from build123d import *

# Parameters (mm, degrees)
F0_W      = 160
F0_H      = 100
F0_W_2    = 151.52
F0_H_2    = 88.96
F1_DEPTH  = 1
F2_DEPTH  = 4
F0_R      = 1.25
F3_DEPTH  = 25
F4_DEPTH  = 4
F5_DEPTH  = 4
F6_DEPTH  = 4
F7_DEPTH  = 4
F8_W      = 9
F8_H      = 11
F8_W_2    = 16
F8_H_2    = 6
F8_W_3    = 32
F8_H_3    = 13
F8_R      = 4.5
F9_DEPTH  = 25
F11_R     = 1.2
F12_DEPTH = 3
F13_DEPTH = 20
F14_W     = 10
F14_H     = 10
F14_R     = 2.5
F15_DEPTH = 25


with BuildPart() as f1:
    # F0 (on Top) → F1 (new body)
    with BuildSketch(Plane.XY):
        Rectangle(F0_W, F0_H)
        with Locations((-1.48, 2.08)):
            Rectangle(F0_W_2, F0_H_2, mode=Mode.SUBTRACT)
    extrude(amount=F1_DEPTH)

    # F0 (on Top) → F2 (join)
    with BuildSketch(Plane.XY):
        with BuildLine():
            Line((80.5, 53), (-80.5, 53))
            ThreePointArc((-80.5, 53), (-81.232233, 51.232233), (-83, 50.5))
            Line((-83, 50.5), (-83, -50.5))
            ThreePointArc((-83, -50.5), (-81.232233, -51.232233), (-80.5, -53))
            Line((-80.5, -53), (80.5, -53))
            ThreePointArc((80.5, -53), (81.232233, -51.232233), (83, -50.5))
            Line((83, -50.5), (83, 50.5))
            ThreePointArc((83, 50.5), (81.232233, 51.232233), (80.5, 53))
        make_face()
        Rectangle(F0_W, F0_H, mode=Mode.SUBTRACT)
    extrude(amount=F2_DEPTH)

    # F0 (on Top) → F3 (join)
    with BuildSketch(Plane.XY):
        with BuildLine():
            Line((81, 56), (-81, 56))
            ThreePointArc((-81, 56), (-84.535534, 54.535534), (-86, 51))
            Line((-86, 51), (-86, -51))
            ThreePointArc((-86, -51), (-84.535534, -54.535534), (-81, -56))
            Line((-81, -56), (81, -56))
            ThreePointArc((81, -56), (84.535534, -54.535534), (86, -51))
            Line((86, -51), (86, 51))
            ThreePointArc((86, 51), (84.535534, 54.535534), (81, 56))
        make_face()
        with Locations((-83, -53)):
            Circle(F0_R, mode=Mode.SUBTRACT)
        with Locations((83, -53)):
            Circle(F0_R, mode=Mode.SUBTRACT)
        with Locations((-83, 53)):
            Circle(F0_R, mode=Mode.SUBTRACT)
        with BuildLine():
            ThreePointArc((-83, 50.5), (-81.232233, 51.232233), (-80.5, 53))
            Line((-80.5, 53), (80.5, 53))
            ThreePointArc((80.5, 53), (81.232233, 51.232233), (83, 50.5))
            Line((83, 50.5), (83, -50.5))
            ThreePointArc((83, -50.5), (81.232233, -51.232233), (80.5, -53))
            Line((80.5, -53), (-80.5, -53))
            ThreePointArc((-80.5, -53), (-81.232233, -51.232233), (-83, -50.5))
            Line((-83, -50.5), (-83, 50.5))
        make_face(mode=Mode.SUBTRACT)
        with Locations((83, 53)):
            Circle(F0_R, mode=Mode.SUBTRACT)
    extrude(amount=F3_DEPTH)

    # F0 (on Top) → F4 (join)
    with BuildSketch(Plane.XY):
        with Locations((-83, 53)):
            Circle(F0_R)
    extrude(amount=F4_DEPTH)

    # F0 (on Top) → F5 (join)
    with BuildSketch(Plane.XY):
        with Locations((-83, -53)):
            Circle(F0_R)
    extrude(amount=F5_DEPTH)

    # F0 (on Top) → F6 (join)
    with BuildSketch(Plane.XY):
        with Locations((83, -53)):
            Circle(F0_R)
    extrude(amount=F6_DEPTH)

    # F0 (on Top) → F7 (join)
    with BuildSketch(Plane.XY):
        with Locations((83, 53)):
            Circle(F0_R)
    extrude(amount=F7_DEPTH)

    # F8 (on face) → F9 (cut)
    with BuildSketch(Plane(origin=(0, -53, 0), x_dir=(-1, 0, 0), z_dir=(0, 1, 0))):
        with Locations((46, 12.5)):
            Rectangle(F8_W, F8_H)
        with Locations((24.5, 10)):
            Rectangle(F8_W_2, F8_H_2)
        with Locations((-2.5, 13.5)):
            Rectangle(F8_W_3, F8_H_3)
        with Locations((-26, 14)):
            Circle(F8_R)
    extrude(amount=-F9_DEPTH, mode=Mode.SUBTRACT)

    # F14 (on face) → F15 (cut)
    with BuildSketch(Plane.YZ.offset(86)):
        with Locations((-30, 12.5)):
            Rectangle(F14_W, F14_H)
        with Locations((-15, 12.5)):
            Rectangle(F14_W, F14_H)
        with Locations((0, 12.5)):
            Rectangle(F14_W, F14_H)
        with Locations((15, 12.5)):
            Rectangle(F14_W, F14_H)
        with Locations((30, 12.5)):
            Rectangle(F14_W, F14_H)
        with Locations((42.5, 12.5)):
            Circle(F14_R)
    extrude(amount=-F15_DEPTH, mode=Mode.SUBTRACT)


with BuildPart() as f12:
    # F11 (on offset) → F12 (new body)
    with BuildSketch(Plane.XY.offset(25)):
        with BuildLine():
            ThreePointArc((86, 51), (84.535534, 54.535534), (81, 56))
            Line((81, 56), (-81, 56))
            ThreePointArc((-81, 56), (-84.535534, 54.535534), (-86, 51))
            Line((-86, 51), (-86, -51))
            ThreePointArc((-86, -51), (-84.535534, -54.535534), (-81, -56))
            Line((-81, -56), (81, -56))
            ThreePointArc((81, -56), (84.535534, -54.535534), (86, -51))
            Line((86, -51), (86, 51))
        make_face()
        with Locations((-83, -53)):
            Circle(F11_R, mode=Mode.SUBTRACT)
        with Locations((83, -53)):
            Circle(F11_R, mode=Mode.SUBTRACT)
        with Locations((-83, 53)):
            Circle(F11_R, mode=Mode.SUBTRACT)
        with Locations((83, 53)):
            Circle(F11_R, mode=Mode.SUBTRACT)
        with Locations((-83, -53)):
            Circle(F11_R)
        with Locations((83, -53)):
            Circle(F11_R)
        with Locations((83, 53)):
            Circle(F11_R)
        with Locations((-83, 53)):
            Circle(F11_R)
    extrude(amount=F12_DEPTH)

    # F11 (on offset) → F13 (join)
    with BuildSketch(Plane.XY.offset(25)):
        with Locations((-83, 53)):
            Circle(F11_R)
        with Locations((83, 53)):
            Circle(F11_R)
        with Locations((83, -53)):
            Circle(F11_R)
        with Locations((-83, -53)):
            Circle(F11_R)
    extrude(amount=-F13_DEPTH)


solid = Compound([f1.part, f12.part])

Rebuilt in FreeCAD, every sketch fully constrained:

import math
import FreeCAD as App
import Part
import Sketcher
from FreeCAD import Vector


def add_polygon(sketch, points):
    """Adds a closed chain of lines whose ends are joined by coincident constraints."""
    first, n = sketch.GeometryCount, len(points)
    for a, b in zip(points, points[1:] + points[:1]):
        sketch.addGeometry(Part.LineSegment(App.Vector(*a, 0), App.Vector(*b, 0)), False)
    for i in range(n):
        sketch.addConstraint(Sketcher.Constraint("Coincident", first + i, 2, first + (i + 1) % n, 1))

doc = App.newDocument("Part")
body = doc.addObject("PartDesign::Body", "Body")

sketch1 = body.newObject("Sketcher::SketchObject", "Sketch")
sketch1.AttachmentSupport = (doc.getObject("XY_Plane"), [""])
sketch1.MapMode = "FlatFace"
add_polygon(sketch1, [(-80, 50), (-80, -50), (80, -50), (80, 50)])
add_polygon(sketch1, [(74.28, -42.4), (-77.24, -42.4), (-77.24, 46.56), (74.28, 46.56)])
sketch1.addConstraint([
    Sketcher.Constraint("Vertical", 0),
    Sketcher.Constraint("Horizontal", 1),
    Sketcher.Constraint("Vertical", 2),
    Sketcher.Constraint("Horizontal", 3),
    Sketcher.Constraint("Horizontal", 4),
    Sketcher.Constraint("Vertical", 5),
    Sketcher.Constraint("Horizontal", 6),
    Sketcher.Constraint("Vertical", 7),
    Sketcher.Constraint("Symmetric", 0, 2, 2, 2, -1, 1),
    Sketcher.Constraint("DistanceX", 1, 1, 1, 2, 160.0),
    Sketcher.Constraint("DistanceY", 0, 2, 0, 1, 100.0),
    Sketcher.Constraint("DistanceX", 4, 2, 4, 1, 151.52),
    Sketcher.Constraint("DistanceY", 5, 1, 5, 2, 88.96),
    Sketcher.Constraint("DistanceY", 4, 2, -1, 1, 42.4),
    Sketcher.Constraint("DistanceX", 4, 2, -1, 1, 77.24),
])
pad1 = body.newObject("PartDesign::Pad", "Pad")
pad1.Profile = sketch1
pad1.Length = 1

sketch2 = body.newObject("Sketcher::SketchObject", "Sketch001")
sketch2.AttachmentSupport = (doc.getObject("XY_Plane"), [""])
sketch2.MapMode = "FlatFace"
sketch2.addGeometry(Part.LineSegment(Vector(80.5, 53, 0), Vector(-80.5, 53, 0)), False)
sketch2.addGeometry(Part.ArcOfCircle(Part.Circle(Vector(-83, 53, 0), Vector(0, 0, 1), 2.5), math.radians(-90.000004), math.radians(0.000004)), False)
sketch2.addGeometry(Part.LineSegment(Vector(-83, 50.5, 0), Vector(-83, -50.5, 0)), False)
sketch2.addGeometry(Part.ArcOfCircle(Part.Circle(Vector(-83, -53, 0), Vector(0, 0, 1), 2.5), math.radians(-0.000004), math.radians(90.000004)), False)
sketch2.addGeometry(Part.LineSegment(Vector(-80.5, -53, 0), Vector(80.5, -53, 0)), False)
sketch2.addGeometry(Part.ArcOfCircle(Part.Circle(Vector(83, -53, 0), Vector(0, 0, 1), 2.5), math.radians(89.999996), math.radians(180.000004)), False)
sketch2.addGeometry(Part.LineSegment(Vector(83, -50.5, 0), Vector(83, 50.5, 0)), False)
sketch2.addGeometry(Part.ArcOfCircle(Part.Circle(Vector(83, 53, 0), Vector(0, 0, 1), 2.5), math.radians(179.999996), math.radians(270.000004)), False)
add_polygon(sketch2, [(80, -50), (-80, -50), (-80, 50), (80, 50)])
sketch2.addConstraint([
    Sketcher.Constraint("Coincident", 0, 2, 1, 2),
    Sketcher.Constraint("Coincident", 1, 1, 2, 1),
    Sketcher.Constraint("Coincident", 2, 2, 3, 2),
    Sketcher.Constraint("Coincident", 3, 1, 4, 1),
    Sketcher.Constraint("Coincident", 4, 2, 5, 2),
    Sketcher.Constraint("Coincident", 5, 1, 6, 1),
    Sketcher.Constraint("Coincident", 6, 2, 7, 2),
    Sketcher.Constraint("Coincident", 7, 1, 0, 1),
    Sketcher.Constraint("Horizontal", 0),
    Sketcher.Constraint("Vertical", 2),
    Sketcher.Constraint("Horizontal", 4),
    Sketcher.Constraint("Vertical", 6),
    Sketcher.Constraint("Horizontal", 8),
    Sketcher.Constraint("Vertical", 9),
    Sketcher.Constraint("Horizontal", 10),
    Sketcher.Constraint("Vertical", 11),
    Sketcher.Constraint("Equal", 1, 3),
    Sketcher.Constraint("Equal", 3, 5),
    Sketcher.Constraint("Equal", 5, 7),
    Sketcher.Constraint("Symmetric", 1, 3, 5, 3, -1, 1),
    Sketcher.Constraint("Symmetric", 3, 3, 7, 3, -1, 1),
    Sketcher.Constraint("Symmetric", 8, 2, 10, 2, -1, 1),
    Sketcher.Constraint("Symmetric", 3, 3, 5, 3, -2),
    Sketcher.Constraint("Horizontal", 7, 3, 0, 2),
    Sketcher.Constraint("Horizontal", 5, 3, 3, 1),
    Sketcher.Constraint("Vertical", 3, 3, 1, 1),
    Sketcher.Constraint("Vertical", 7, 3, 5, 1),
    Sketcher.Constraint("Radius", 1, 2.5),
    Sketcher.Constraint("DistanceX", 0, 2, 0, 1, 161.0),
    Sketcher.Constraint("DistanceX", 8, 2, 8, 1, 160.0),
    Sketcher.Constraint("DistanceY", 2, 2, 2, 1, 101.0),
    Sketcher.Constraint("DistanceY", 9, 1, 9, 2, 100.0),
])
pad2 = body.newObject("PartDesign::Pad", "Pad001")
pad2.Profile = sketch2
pad2.Length = 4

sketch3 = body.newObject("Sketcher::SketchObject", "Sketch002")
sketch3.AttachmentSupport = (doc.getObject("XY_Plane"), [""])
sketch3.MapMode = "FlatFace"
sketch3.addGeometry([
    Part.LineSegment(Vector(81, 56, 0), Vector(-81, 56, 0)),
    Part.ArcOfCircle(Part.Circle(Vector(-81, 51, 0), Vector(0, 0, 1), 5), math.radians(89.999996), math.radians(180.000004)),
    Part.LineSegment(Vector(-86, 51, 0), Vector(-86, -51, 0)),
    Part.ArcOfCircle(Part.Circle(Vector(-81, -51, 0), Vector(0, 0, 1), 5), math.radians(179.999996), math.radians(270.000004)),
    Part.LineSegment(Vector(-81, -56, 0), Vector(81, -56, 0)),
    Part.ArcOfCircle(Part.Circle(Vector(81, -51, 0), Vector(0, 0, 1), 5), math.radians(-90.000004), math.radians(0.000004)),
    Part.LineSegment(Vector(86, -51, 0), Vector(86, 51, 0)),
    Part.ArcOfCircle(Part.Circle(Vector(81, 51, 0), Vector(0, 0, 1), 5), math.radians(-0.000004), math.radians(90.000004)),
    Part.Circle(Vector(-83, -53, 0), Vector(0, 0, 1), 1.25),
    Part.Circle(Vector(83, -53, 0), Vector(0, 0, 1), 1.25),
    Part.Circle(Vector(-83, 53, 0), Vector(0, 0, 1), 1.25),
    Part.LineSegment(Vector(-83, -50.5, 0), Vector(-83, 50.5, 0)),
    Part.ArcOfCircle(Part.Circle(Vector(-83, 53, 0), Vector(0, 0, 1), 2.5), math.radians(-90.000004), math.radians(0.000004)),
    Part.LineSegment(Vector(-80.5, 53, 0), Vector(80.5, 53, 0)),
    Part.ArcOfCircle(Part.Circle(Vector(83, 53, 0), Vector(0, 0, 1), 2.5), math.radians(179.999996), math.radians(270.000004)),
    Part.LineSegment(Vector(83, 50.5, 0), Vector(83, -50.5, 0)),
    Part.ArcOfCircle(Part.Circle(Vector(83, -53, 0), Vector(0, 0, 1), 2.5), math.radians(89.999996), math.radians(180.000004)),
    Part.LineSegment(Vector(80.5, -53, 0), Vector(-80.5, -53, 0)),
    Part.ArcOfCircle(Part.Circle(Vector(-83, -53, 0), Vector(0, 0, 1), 2.5), math.radians(-0.000004), math.radians(90.000004)),
    Part.Circle(Vector(83, 53, 0), Vector(0, 0, 1), 1.25),
], False)
sketch3.addConstraint([
    Sketcher.Constraint("Tangent", 0, 2, 1, 1),
    Sketcher.Constraint("Tangent", 1, 2, 2, 1),
    Sketcher.Constraint("Tangent", 2, 2, 3, 1),
    Sketcher.Constraint("Tangent", 3, 2, 4, 1),
    Sketcher.Constraint("Tangent", 4, 2, 5, 1),
    Sketcher.Constraint("Tangent", 5, 2, 6, 1),
    Sketcher.Constraint("Tangent", 6, 2, 7, 1),
    Sketcher.Constraint("Tangent", 7, 2, 0, 1),
    Sketcher.Constraint("Coincident", 11, 2, 12, 1),
    Sketcher.Constraint("Coincident", 12, 2, 13, 1),
    Sketcher.Constraint("Coincident", 13, 2, 14, 1),
    Sketcher.Constraint("Coincident", 14, 2, 15, 1),
    Sketcher.Constraint("Coincident", 15, 2, 16, 1),
    Sketcher.Constraint("Coincident", 16, 2, 17, 1),
    Sketcher.Constraint("Coincident", 17, 2, 18, 1),
    Sketcher.Constraint("Coincident", 18, 2, 11, 1),
    Sketcher.Constraint("Horizontal", 0),
    Sketcher.Constraint("Vertical", 2),
    Sketcher.Constraint("Horizontal", 4),
    Sketcher.Constraint("Vertical", 6),
    Sketcher.Constraint("Vertical", 11),
    Sketcher.Constraint("Horizontal", 13),
    Sketcher.Constraint("Vertical", 15),
    Sketcher.Constraint("Horizontal", 17),
    Sketcher.Constraint("Coincident", 12, 3, 10, 3),
    Sketcher.Constraint("Coincident", 16, 3, 9, 3),
    Sketcher.Constraint("Coincident", 18, 3, 8, 3),
    Sketcher.Constraint("Coincident", 19, 3, 14, 3),
    Sketcher.Constraint("Equal", 1, 3),
    Sketcher.Constraint("Equal", 3, 5),
    Sketcher.Constraint("Equal", 5, 7),
    Sketcher.Constraint("Equal", 8, 9),
    Sketcher.Constraint("Equal", 9, 10),
    Sketcher.Constraint("Equal", 12, 14),
    Sketcher.Constraint("Equal", 14, 16),
    Sketcher.Constraint("Equal", 16, 18),
    Sketcher.Constraint("Equal", 10, 19),
    Sketcher.Constraint("Symmetric", 1, 3, 5, 3, -1, 1),
    Sketcher.Constraint("Symmetric", 9, 3, 10, 3, -1, 1),
    Sketcher.Constraint("Symmetric", 8, 3, 14, 3, -1, 1),
    Sketcher.Constraint("Symmetric", 8, 3, 9, 3, -2),
    Sketcher.Constraint("Horizontal", 19, 3, 12, 2),
    Sketcher.Constraint("Horizontal", 18, 3, 16, 2),
    Sketcher.Constraint("Vertical", 18, 3, 11, 2),
    Sketcher.Constraint("Vertical", 19, 3, 14, 2),
    Sketcher.Constraint("Radius", 1, 5.0),
    Sketcher.Constraint("Diameter", 8, 2.5),
    Sketcher.Constraint("Radius", 12, 2.5),
    Sketcher.Constraint("DistanceX", 0, 2, 0, 1, 162.0),
    Sketcher.Constraint("DistanceX", 13, 1, 13, 2, 161.0),
    Sketcher.Constraint("DistanceY", 2, 2, 2, 1, 102.0),
    Sketcher.Constraint("DistanceY", 11, 1, 11, 2, 101.0),
])
pad3 = body.newObject("PartDesign::Pad", "Pad002")
pad3.Profile = sketch3
pad3.Length = 25

sketch4 = body.newObject("Sketcher::SketchObject", "Sketch003")
sketch4.AttachmentSupport = (doc.getObject("XY_Plane"), [""])
sketch4.MapMode = "FlatFace"
sketch4.addGeometry(Part.Circle(Vector(-83, 53, 0), Vector(0, 0, 1), 1.25), False)
sketch4.addConstraint([
    Sketcher.Constraint("Diameter", 0, 2.5),
    Sketcher.Constraint("DistanceX", 0, 3, -1, 1, 83.0),
    Sketcher.Constraint("DistanceY", -1, 1, 0, 3, 53.0),
])
pad4 = body.newObject("PartDesign::Pad", "Pad003")
pad4.Profile = sketch4
pad4.Length = 4

sketch5 = body.newObject("Sketcher::SketchObject", "Sketch004")
sketch5.AttachmentSupport = (doc.getObject("XY_Plane"), [""])
sketch5.MapMode = "FlatFace"
sketch5.addGeometry(Part.Circle(Vector(-83, -53, 0), Vector(0, 0, 1), 1.25), False)
sketch5.addConstraint([
    Sketcher.Constraint("Diameter", 0, 2.5),
    Sketcher.Constraint("DistanceX", 0, 3, -1, 1, 83.0),
    Sketcher.Constraint("DistanceY", 0, 3, -1, 1, 53.0),
])
pad5 = body.newObject("PartDesign::Pad", "Pad004")
pad5.Profile = sketch5
pad5.Length = 4

sketch6 = body.newObject("Sketcher::SketchObject", "Sketch005")
sketch6.AttachmentSupport = (doc.getObject("XY_Plane"), [""])
sketch6.MapMode = "FlatFace"
sketch6.addGeometry(Part.Circle(Vector(83, -53, 0), Vector(0, 0, 1), 1.25), False)
sketch6.addConstraint([
    Sketcher.Constraint("Diameter", 0, 2.5),
    Sketcher.Constraint("DistanceX", -1, 1, 0, 3, 83.0),
    Sketcher.Constraint("DistanceY", 0, 3, -1, 1, 53.0),
])
pad6 = body.newObject("PartDesign::Pad", "Pad005")
pad6.Profile = sketch6
pad6.Length = 4

sketch7 = body.newObject("Sketcher::SketchObject", "Sketch006")
sketch7.AttachmentSupport = (doc.getObject("XY_Plane"), [""])
sketch7.MapMode = "FlatFace"
sketch7.addGeometry(Part.Circle(Vector(83, 53, 0), Vector(0, 0, 1), 1.25), False)
sketch7.addConstraint([
    Sketcher.Constraint("Diameter", 0, 2.5),
    Sketcher.Constraint("DistanceX", -1, 1, 0, 3, 83.0),
    Sketcher.Constraint("DistanceY", -1, 1, 0, 3, 53.0),
])
pad7 = body.newObject("PartDesign::Pad", "Pad006")
pad7.Profile = sketch7
pad7.Length = 4

sketch8 = body.newObject("Sketcher::SketchObject", "Sketch007")
sketch8.AttachmentSupport = (doc.getObject("XZ_Plane"), [""])
sketch8.MapMode = "FlatFace"
sketch8.AttachmentOffset = App.Placement(Vector(0, 0, 53), App.Rotation())
add_polygon(sketch8, [(-41.5, 18), (-41.5, 7), (-50.5, 7), (-50.5, 18)])
add_polygon(sketch8, [(-16.5, 13), (-16.5, 7), (-32.5, 7), (-32.5, 13)])
add_polygon(sketch8, [(18.5, 20), (18.5, 7), (-13.5, 7), (-13.5, 20)])
sketch8.addGeometry(Part.Circle(Vector(26, 14, 0), Vector(0, 0, 1), 4.5), False)
sketch8.addConstraint([
    Sketcher.Constraint("Vertical", 0),
    Sketcher.Constraint("Horizontal", 1),
    Sketcher.Constraint("Vertical", 2),
    Sketcher.Constraint("Horizontal", 3),
    Sketcher.Constraint("Vertical", 4),
    Sketcher.Constraint("Horizontal", 5),
    Sketcher.Constraint("Vertical", 6),
    Sketcher.Constraint("Horizontal", 7),
    Sketcher.Constraint("Vertical", 8),
    Sketcher.Constraint("Horizontal", 9),
    Sketcher.Constraint("Vertical", 10),
    Sketcher.Constraint("Horizontal", 11),
    Sketcher.Constraint("Horizontal", 1, 2, 4, 2),
    Sketcher.Constraint("Horizontal", 5, 2, 8, 2),
    Sketcher.Constraint("Diameter", 12, 9.0),
    Sketcher.Constraint("DistanceX", 1, 2, 1, 1, 9.0),
    Sketcher.Constraint("DistanceX", 5, 2, 5, 1, 16.0),
    Sketcher.Constraint("DistanceX", 9, 2, 9, 1, 32.0),
    Sketcher.Constraint("DistanceY", 0, 2, 0, 1, 11.0),
    Sketcher.Constraint("DistanceY", 4, 2, 4, 1, 6.0),
    Sketcher.Constraint("DistanceY", 8, 2, 8, 1, 13.0),
    Sketcher.Constraint("DistanceX", -1, 1, 12, 3, 26.0),
    Sketcher.Constraint("DistanceY", -1, 1, 12, 3, 14.0),
    Sketcher.Constraint("DistanceY", -1, 1, 0, 2, 7.0),
    Sketcher.Constraint("DistanceX", 0, 2, 4, 2, 25.0),
    Sketcher.Constraint("DistanceX", 4, 2, 8, 2, 35.0),
    Sketcher.Constraint("DistanceX", 0, 2, -1, 1, 41.5),
])
pocket1 = body.newObject("PartDesign::Pocket", "Pocket")
pocket1.Profile = sketch8
pocket1.Length = 25
pocket1.Reversed = True

sketch9 = body.newObject("Sketcher::SketchObject", "Sketch008")
sketch9.AttachmentSupport = (doc.getObject("YZ_Plane"), [""])
sketch9.MapMode = "FlatFace"
sketch9.AttachmentOffset = App.Placement(Vector(0, 0, 86), App.Rotation())
add_polygon(sketch9, [(-35, 17.5), (-35, 7.5), (-25, 7.5), (-25, 17.5)])
add_polygon(sketch9, [(-20, 17.5), (-20, 7.5), (-10, 7.5), (-10, 17.5)])
add_polygon(sketch9, [(-5, 17.5), (-5, 7.5), (5, 7.5), (5, 17.5)])
add_polygon(sketch9, [(10, 17.5), (10, 7.5), (20, 7.5), (20, 17.5)])
add_polygon(sketch9, [(25, 17.5), (25, 7.5), (35, 7.5), (35, 17.5)])
sketch9.addGeometry(Part.Circle(Vector(42.5, 12.5, 0), Vector(0, 0, 1), 2.5), False)
sketch9.addConstraint([
    Sketcher.Constraint("Vertical", 0),
    Sketcher.Constraint("Horizontal", 1),
    Sketcher.Constraint("Vertical", 2),
    Sketcher.Constraint("Horizontal", 3),
    Sketcher.Constraint("Vertical", 4),
    Sketcher.Constraint("Horizontal", 5),
    Sketcher.Constraint("Vertical", 6),
    Sketcher.Constraint("Horizontal", 7),
    Sketcher.Constraint("Vertical", 8),
    Sketcher.Constraint("Horizontal", 9),
    Sketcher.Constraint("Vertical", 10),
    Sketcher.Constraint("Horizontal", 11),
    Sketcher.Constraint("Vertical", 12),
    Sketcher.Constraint("Horizontal", 13),
    Sketcher.Constraint("Vertical", 14),
    Sketcher.Constraint("Horizontal", 15),
    Sketcher.Constraint("Vertical", 16),
    Sketcher.Constraint("Horizontal", 17),
    Sketcher.Constraint("Vertical", 18),
    Sketcher.Constraint("Horizontal", 19),
    Sketcher.Constraint("Symmetric", 5, 2, 12, 2, -2),
    Sketcher.Constraint("Symmetric", 7, 2, 14, 2, -2),
    Sketcher.Constraint("Symmetric", 1, 2, 16, 2, -2),
    Sketcher.Constraint("Symmetric", 3, 2, 18, 2, -2),
    Sketcher.Constraint("Horizontal", 1, 2, 4, 2),
    Sketcher.Constraint("Horizontal", 3, 2, 6, 2),
    Sketcher.Constraint("Horizontal", 5, 2, 8, 2),
    Sketcher.Constraint("Horizontal", 7, 2, 10, 2),
    Sketcher.Constraint("Equal", 3, 5),
    Sketcher.Constraint("Equal", 7, 9),
    Sketcher.Constraint("Equal", 19, 0),
    Sketcher.Constraint("Diameter", 20, 5.0),
    Sketcher.Constraint("DistanceX", 1, 1, 1, 2, 10.0),
    Sketcher.Constraint("DistanceX", 0, 2, -1, 1, 35.0),
    Sketcher.Constraint("DistanceX", 4, 2, -1, 1, 20.0),
    Sketcher.Constraint("DistanceX", 8, 2, -1, 1, 5.0),
    Sketcher.Constraint("DistanceY", 0, 2, 20, 3, 5.0),
    Sketcher.Constraint("DistanceX", -1, 1, 20, 3, 42.5),
    Sketcher.Constraint("DistanceY", -1, 1, 20, 3, 12.5),
])
pocket2 = body.newObject("PartDesign::Pocket", "Pocket001")
pocket2.Profile = sketch9
pocket2.Length = 25
body2 = doc.addObject("PartDesign::Body", "Body001")

sketch10 = body2.newObject("Sketcher::SketchObject", "Sketch009")
sketch10.AttachmentSupport = (doc.getObject("XY_Plane001"), [""])
sketch10.MapMode = "FlatFace"
sketch10.AttachmentOffset = App.Placement(Vector(0, 0, 25), App.Rotation())
sketch10.addGeometry([
    Part.ArcOfCircle(Part.Circle(Vector(81, 51, 0), Vector(0, 0, 1), 5), math.radians(-0.000004), math.radians(90.000004)),
    Part.LineSegment(Vector(81, 56, 0), Vector(-81, 56, 0)),
    Part.ArcOfCircle(Part.Circle(Vector(-81, 51, 0), Vector(0, 0, 1), 5), math.radians(89.999996), math.radians(180.000004)),
    Part.LineSegment(Vector(-86, 51, 0), Vector(-86, -51, 0)),
    Part.ArcOfCircle(Part.Circle(Vector(-81, -51, 0), Vector(0, 0, 1), 5), math.radians(179.999996), math.radians(270.000004)),
    Part.LineSegment(Vector(-81, -56, 0), Vector(81, -56, 0)),
    Part.ArcOfCircle(Part.Circle(Vector(81, -51, 0), Vector(0, 0, 1), 5), math.radians(-90.000004), math.radians(0.000004)),
    Part.LineSegment(Vector(86, -51, 0), Vector(86, 51, 0)),
], False)
sketch10.addConstraint([
    Sketcher.Constraint("Tangent", 0, 2, 1, 1),
    Sketcher.Constraint("Tangent", 1, 2, 2, 1),
    Sketcher.Constraint("Tangent", 2, 2, 3, 1),
    Sketcher.Constraint("Tangent", 3, 2, 4, 1),
    Sketcher.Constraint("Tangent", 4, 2, 5, 1),
    Sketcher.Constraint("Tangent", 5, 2, 6, 1),
    Sketcher.Constraint("Tangent", 6, 2, 7, 1),
    Sketcher.Constraint("Tangent", 7, 2, 0, 1),
    Sketcher.Constraint("Horizontal", 1),
    Sketcher.Constraint("Vertical", 3),
    Sketcher.Constraint("Horizontal", 5),
    Sketcher.Constraint("Vertical", 7),
    Sketcher.Constraint("Equal", 0, 2),
    Sketcher.Constraint("Equal", 2, 4),
    Sketcher.Constraint("Equal", 4, 6),
    Sketcher.Constraint("Symmetric", 0, 3, 4, 3, -1, 1),
    Sketcher.Constraint("Radius", 0, 5.0),
    Sketcher.Constraint("DistanceX", 1, 2, 1, 1, 162.0),
    Sketcher.Constraint("DistanceY", 3, 2, 3, 1, 102.0),
])
pad8 = body2.newObject("PartDesign::Pad", "Pad007")
pad8.Profile = sketch10
pad8.Length = 3

sketch11 = body2.newObject("Sketcher::SketchObject", "Sketch010")
sketch11.AttachmentSupport = (doc.getObject("XY_Plane001"), [""])
sketch11.MapMode = "FlatFace"
sketch11.AttachmentOffset = App.Placement(Vector(0, 0, 25), App.Rotation())
sketch11.addGeometry([
    Part.Circle(Vector(-83, 53, 0), Vector(0, 0, 1), 1.2),
    Part.Circle(Vector(83, 53, 0), Vector(0, 0, 1), 1.2),
    Part.Circle(Vector(83, -53, 0), Vector(0, 0, 1), 1.2),
    Part.Circle(Vector(-83, -53, 0), Vector(0, 0, 1), 1.2),
], False)
sketch11.addConstraint([
    Sketcher.Constraint("Equal", 0, 1),
    Sketcher.Constraint("Equal", 1, 2),
    Sketcher.Constraint("Equal", 2, 3),
    Sketcher.Constraint("Symmetric", 0, 3, 2, 3, -1, 1),
    Sketcher.Constraint("Symmetric", 1, 3, 3, 3, -1, 1),
    Sketcher.Constraint("Symmetric", 0, 3, 1, 3, -2),
    Sketcher.Constraint("Diameter", 0, 2.4),
    Sketcher.Constraint("DistanceX", 0, 3, -1, 1, 83.0),
    Sketcher.Constraint("DistanceY", -1, 1, 0, 3, 53.0),
])
pad9 = body2.newObject("PartDesign::Pad", "Pad008")
pad9.Profile = sketch11
pad9.Length = 20
pad9.Reversed = True

doc.recompute()
